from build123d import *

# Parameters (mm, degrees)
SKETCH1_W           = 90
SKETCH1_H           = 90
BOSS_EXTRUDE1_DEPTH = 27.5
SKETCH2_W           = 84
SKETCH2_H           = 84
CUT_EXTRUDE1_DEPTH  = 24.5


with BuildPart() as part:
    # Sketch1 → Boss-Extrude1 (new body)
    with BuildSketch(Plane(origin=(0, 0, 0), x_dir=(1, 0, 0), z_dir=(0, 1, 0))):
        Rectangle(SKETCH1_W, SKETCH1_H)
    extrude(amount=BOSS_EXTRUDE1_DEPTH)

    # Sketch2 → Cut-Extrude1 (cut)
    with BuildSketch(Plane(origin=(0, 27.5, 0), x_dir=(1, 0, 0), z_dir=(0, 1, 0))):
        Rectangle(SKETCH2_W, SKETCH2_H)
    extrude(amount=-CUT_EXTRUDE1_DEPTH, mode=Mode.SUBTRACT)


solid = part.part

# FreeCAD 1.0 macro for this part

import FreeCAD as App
import Part
import Sketcher

doc = App.newDocument("Part")
body = doc.addObject("PartDesign::Body", "Body")

sketch1 = body.newObject("Sketcher::SketchObject", "Sketch")
sketch1.AttachmentSupport = (doc.getObject("XZ_Plane"), [""])
sketch1.MapMode = "FlatFace"
sketch1.addGeometry(Part.LineSegment(App.Vector(-45, -45, 0), App.Vector(-45, 45, 0)), False)
sketch1.addGeometry(Part.LineSegment(App.Vector(-45, 45, 0), App.Vector(45, 45, 0)), False)
sketch1.addGeometry(Part.LineSegment(App.Vector(45, 45, 0), App.Vector(45, -45, 0)), False)
sketch1.addGeometry(Part.LineSegment(App.Vector(45, -45, 0), App.Vector(-45, -45, 0)), False)
sketch1.addConstraint(Sketcher.Constraint("Coincident", 0, 2, 1, 1))
sketch1.addConstraint(Sketcher.Constraint("Coincident", 1, 2, 2, 1))
sketch1.addConstraint(Sketcher.Constraint("Coincident", 2, 2, 3, 1))
sketch1.addConstraint(Sketcher.Constraint("Coincident", 3, 2, 0, 1))
sketch1.addConstraint(Sketcher.Constraint("Vertical", 0))
sketch1.addConstraint(Sketcher.Constraint("Horizontal", 1))
sketch1.addConstraint(Sketcher.Constraint("Vertical", 2))
sketch1.addConstraint(Sketcher.Constraint("Horizontal", 3))
sketch1.addConstraint(Sketcher.Constraint("Symmetric", 0, 2, 2, 2, -1, 1))
sketch1.addConstraint(Sketcher.Constraint("Equal", 3, 0))
sketch1.addConstraint(Sketcher.Constraint("DistanceX", 1, 1, 1, 2, 90.0))
pad1 = body.newObject("PartDesign::Pad", "Pad")
pad1.Profile = sketch1
pad1.Length = 27.5
pad1.Reversed = True

sketch2 = body.newObject("Sketcher::SketchObject", "Sketch001")
sketch2.AttachmentSupport = (doc.getObject("XZ_Plane"), [""])
sketch2.MapMode = "FlatFace"
sketch2.AttachmentOffset = App.Placement(App.Vector(0, 0, -27.5), App.Rotation())
sketch2.addGeometry(Part.LineSegment(App.Vector(-42, -42, 0), App.Vector(-42, 42, 0)), False)
sketch2.addGeometry(Part.LineSegment(App.Vector(-42, 42, 0), App.Vector(42, 42, 0)), False)
sketch2.addGeometry(Part.LineSegment(App.Vector(42, 42, 0), App.Vector(42, -42, 0)), False)
sketch2.addGeometry(Part.LineSegment(App.Vector(42, -42, 0), App.Vector(-42, -42, 0)), False)
sketch2.addConstraint(Sketcher.Constraint("Coincident", 0, 2, 1, 1))
sketch2.addConstraint(Sketcher.Constraint("Coincident", 1, 2, 2, 1))
sketch2.addConstraint(Sketcher.Constraint("Coincident", 2, 2, 3, 1))
sketch2.addConstraint(Sketcher.Constraint("Coincident", 3, 2, 0, 1))
sketch2.addConstraint(Sketcher.Constraint("Vertical", 0))
sketch2.addConstraint(Sketcher.Constraint("Horizontal", 1))
sketch2.addConstraint(Sketcher.Constraint("Vertical", 2))
sketch2.addConstraint(Sketcher.Constraint("Horizontal", 3))
sketch2.addConstraint(Sketcher.Constraint("Symmetric", 0, 2, 2, 2, -1, 1))
sketch2.addConstraint(Sketcher.Constraint("Equal", 3, 0))
sketch2.addConstraint(Sketcher.Constraint("DistanceX", 1, 1, 1, 2, 84.0))
pocket1 = body.newObject("PartDesign::Pocket", "Pocket")
pocket1.Profile = sketch2
pocket1.Length = 24.5
pocket1.Reversed = True

doc.recompute()
